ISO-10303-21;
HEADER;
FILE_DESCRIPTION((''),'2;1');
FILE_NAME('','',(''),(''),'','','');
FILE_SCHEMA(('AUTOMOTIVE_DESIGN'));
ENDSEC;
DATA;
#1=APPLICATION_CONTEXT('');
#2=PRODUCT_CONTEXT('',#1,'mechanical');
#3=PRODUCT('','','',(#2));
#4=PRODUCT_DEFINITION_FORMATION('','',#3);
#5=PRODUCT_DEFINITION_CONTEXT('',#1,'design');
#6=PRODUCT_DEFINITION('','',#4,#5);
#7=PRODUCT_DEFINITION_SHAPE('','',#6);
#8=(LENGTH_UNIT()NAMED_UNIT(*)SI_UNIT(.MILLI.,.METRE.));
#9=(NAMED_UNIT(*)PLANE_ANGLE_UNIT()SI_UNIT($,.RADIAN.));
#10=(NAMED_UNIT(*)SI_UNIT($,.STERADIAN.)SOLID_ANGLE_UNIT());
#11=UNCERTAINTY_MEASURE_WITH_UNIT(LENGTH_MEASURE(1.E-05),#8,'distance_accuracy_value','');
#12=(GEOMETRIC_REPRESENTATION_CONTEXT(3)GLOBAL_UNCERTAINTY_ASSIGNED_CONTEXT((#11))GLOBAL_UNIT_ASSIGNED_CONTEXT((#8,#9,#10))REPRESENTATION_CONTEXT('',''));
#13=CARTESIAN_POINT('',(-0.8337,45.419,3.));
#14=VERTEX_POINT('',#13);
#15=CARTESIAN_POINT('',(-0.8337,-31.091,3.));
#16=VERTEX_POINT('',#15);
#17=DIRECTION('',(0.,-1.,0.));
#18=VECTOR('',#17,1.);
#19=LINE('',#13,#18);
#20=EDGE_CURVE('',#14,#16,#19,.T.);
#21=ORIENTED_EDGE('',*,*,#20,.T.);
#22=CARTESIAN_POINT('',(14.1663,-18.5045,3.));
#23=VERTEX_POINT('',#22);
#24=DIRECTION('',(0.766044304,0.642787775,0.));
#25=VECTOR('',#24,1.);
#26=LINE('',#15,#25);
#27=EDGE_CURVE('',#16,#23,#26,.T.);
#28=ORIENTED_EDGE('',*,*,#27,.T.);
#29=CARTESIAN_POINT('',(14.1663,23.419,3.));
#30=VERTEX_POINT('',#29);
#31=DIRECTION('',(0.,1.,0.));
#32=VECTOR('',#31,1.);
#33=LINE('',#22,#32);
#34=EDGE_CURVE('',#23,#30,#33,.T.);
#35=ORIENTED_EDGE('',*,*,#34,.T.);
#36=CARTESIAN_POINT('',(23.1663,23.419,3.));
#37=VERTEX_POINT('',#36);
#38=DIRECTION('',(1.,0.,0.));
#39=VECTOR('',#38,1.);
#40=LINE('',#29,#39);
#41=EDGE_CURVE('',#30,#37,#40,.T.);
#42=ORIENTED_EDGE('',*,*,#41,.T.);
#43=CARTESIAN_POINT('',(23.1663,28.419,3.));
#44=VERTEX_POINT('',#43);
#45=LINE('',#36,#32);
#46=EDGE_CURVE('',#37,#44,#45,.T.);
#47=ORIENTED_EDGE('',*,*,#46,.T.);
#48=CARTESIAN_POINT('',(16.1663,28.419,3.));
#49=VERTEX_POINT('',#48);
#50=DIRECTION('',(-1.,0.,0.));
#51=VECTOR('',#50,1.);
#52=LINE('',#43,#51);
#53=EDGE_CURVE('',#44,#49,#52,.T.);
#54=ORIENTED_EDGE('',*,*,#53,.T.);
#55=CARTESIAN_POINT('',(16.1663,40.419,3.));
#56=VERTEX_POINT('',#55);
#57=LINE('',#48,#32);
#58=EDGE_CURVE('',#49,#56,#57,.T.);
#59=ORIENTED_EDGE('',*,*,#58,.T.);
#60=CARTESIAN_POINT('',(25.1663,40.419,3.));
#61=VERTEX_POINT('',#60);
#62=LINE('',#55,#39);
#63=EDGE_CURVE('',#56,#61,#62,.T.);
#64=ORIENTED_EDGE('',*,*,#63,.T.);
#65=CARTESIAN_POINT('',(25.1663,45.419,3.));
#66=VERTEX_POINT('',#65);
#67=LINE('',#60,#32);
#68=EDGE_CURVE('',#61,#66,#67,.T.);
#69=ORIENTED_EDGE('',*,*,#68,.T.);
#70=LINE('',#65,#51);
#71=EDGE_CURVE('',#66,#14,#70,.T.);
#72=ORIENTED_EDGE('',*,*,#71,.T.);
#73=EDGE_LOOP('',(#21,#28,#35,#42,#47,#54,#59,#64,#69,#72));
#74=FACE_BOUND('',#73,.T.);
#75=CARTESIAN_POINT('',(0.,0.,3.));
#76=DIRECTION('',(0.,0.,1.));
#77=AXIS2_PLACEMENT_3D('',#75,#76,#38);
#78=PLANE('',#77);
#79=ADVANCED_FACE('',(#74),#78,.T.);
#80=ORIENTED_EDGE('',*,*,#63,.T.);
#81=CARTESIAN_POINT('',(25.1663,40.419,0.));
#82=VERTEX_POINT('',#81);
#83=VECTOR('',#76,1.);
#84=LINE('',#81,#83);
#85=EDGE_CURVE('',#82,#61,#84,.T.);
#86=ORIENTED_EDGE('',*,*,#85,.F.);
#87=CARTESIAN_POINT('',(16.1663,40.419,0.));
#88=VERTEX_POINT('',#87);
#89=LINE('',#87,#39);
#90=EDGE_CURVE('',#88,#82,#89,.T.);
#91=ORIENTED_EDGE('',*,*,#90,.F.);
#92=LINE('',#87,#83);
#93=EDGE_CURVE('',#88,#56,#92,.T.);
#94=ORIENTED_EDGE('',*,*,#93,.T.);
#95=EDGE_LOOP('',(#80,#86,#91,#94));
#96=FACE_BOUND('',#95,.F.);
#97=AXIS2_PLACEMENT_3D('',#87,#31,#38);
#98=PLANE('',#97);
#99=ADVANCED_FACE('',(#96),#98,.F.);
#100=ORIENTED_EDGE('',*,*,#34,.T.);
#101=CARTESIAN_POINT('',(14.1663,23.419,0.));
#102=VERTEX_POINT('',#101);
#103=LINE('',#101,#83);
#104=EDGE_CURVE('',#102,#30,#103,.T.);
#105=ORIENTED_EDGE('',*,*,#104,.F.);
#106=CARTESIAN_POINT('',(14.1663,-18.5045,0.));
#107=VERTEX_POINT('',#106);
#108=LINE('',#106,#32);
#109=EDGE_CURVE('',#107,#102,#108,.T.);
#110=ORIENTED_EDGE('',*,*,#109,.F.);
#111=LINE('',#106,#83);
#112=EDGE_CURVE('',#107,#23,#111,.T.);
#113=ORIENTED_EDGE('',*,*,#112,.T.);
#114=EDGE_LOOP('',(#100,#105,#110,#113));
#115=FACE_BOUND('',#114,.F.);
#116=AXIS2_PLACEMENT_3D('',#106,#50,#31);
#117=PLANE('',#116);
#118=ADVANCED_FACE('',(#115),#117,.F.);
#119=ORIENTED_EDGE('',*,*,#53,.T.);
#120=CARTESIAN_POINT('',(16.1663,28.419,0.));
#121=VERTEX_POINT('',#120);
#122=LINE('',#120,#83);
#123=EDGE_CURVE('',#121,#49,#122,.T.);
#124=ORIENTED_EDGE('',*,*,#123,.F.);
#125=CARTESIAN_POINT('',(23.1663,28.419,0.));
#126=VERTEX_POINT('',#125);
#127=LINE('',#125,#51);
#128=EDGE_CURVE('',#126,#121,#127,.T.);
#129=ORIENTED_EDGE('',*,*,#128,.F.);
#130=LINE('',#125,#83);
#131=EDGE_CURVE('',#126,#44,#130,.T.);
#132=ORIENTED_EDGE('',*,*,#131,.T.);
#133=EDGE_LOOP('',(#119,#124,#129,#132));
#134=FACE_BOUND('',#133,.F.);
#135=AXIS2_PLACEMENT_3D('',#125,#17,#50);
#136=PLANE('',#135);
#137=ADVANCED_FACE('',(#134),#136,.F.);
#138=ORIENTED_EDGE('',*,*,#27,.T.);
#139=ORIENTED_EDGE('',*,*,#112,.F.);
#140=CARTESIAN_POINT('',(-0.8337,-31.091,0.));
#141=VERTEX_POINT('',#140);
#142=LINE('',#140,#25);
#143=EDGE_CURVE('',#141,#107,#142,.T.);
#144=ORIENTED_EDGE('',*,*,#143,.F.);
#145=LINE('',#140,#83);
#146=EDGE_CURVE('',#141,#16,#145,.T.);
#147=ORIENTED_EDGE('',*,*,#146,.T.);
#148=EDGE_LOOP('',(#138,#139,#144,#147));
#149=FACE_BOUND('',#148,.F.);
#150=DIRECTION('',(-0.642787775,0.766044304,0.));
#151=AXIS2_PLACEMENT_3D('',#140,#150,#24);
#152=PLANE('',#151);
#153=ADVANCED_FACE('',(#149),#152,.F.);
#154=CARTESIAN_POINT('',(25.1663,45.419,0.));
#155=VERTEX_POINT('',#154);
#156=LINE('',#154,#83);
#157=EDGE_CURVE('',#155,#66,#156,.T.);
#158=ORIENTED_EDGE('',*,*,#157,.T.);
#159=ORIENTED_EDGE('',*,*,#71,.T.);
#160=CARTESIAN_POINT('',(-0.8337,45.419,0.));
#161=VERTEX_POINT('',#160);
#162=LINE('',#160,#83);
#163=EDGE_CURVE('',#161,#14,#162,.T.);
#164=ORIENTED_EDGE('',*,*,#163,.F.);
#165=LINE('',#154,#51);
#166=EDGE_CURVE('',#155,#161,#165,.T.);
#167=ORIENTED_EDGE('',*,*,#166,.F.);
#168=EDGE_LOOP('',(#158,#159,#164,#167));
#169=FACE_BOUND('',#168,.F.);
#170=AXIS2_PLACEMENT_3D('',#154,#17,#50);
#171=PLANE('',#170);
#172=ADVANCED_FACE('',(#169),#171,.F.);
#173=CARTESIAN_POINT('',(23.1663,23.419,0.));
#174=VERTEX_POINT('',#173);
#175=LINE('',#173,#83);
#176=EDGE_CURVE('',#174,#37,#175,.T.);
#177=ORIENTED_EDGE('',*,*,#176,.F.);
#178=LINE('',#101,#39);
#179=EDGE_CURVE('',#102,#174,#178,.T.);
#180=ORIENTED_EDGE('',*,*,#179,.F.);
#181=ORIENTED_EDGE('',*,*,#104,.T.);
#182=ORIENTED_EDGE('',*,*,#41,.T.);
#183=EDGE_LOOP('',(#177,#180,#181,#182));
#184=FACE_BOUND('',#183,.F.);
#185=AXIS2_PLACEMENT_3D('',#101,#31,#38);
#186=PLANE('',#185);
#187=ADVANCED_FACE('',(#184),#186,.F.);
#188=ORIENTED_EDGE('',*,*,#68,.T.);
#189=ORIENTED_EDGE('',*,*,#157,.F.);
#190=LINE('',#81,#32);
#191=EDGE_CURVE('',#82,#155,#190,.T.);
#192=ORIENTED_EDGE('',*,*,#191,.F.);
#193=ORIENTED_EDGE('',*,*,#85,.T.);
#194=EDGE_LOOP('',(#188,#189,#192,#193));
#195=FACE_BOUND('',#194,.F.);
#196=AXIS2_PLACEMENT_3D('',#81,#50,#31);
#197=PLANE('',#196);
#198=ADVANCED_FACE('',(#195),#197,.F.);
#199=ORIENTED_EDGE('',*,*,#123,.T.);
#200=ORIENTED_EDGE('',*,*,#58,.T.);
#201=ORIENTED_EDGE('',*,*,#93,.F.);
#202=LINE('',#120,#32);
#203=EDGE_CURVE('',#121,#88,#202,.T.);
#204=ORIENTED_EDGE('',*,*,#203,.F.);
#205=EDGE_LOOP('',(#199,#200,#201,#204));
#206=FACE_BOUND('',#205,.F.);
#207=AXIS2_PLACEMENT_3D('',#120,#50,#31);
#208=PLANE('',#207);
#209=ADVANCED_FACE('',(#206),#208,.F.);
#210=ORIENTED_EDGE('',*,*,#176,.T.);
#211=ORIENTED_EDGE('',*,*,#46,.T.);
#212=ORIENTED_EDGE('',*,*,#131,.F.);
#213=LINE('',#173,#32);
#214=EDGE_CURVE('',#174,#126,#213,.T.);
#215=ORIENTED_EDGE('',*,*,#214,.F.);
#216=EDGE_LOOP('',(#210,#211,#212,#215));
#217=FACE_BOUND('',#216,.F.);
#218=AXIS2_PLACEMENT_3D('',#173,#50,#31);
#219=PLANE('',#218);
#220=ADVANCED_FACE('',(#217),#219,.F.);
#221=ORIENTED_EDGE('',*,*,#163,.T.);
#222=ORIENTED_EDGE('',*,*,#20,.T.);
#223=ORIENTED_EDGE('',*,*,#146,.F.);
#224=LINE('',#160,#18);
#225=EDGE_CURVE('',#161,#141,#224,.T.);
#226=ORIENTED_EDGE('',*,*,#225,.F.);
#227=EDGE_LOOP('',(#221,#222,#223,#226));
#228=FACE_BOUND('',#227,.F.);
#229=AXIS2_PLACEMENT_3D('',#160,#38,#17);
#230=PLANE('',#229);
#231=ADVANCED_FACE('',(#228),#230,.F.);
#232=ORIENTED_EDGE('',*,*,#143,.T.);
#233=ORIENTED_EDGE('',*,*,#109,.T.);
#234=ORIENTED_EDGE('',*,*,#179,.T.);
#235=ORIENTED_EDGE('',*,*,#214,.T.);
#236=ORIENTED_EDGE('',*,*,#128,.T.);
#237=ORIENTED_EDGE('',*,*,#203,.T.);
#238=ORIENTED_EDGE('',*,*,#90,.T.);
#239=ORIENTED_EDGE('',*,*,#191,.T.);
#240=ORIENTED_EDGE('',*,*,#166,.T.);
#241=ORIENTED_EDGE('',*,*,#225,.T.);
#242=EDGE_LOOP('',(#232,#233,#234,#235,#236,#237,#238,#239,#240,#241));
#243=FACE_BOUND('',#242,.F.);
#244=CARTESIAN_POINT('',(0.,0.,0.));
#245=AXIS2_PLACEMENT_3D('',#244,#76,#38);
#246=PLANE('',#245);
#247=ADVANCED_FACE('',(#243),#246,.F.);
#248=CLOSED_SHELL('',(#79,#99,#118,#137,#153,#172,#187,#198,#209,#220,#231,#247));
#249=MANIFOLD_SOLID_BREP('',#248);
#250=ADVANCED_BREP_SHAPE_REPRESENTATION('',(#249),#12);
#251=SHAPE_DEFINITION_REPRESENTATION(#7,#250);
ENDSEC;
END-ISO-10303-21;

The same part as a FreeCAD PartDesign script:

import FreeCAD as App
import Part
import Sketcher
from FreeCAD import Vector
Q = App.Units.Quantity

doc = App.newDocument("Part")
body = doc.addObject("PartDesign::Body", "Body")

# Sketch on XY plane
sketch1 = doc.addObject("Sketcher::SketchObject", "Sketch")
body.addObject(sketch1)
sketch1.AttachmentSupport = (doc.XY_Plane, [""])
sketch1.MapMode = "FlatFace"
sketch1.addGeometry(Part.LineSegment(Vector(25, 45, 0), Vector(-1, 45, 0)), False)
sketch1.addGeometry(Part.LineSegment(Vector(-1, 45, 0), Vector(-1, -31, 0)), False)
sketch1.addGeometry(Part.LineSegment(Vector(-1, -31, 0), Vector(14, -19, 0)), False)
sketch1.addGeometry(Part.LineSegment(Vector(14, -19, 0), Vector(14, 23, 0)), False)
sketch1.addGeometry(Part.LineSegment(Vector(14, 23, 0), Vector(23, 23, 0)), False)
sketch1.addGeometry(Part.LineSegment(Vector(23, 23, 0), Vector(23, 28, 0)), False)
sketch1.addGeometry(Part.LineSegment(Vector(23, 28, 0), Vector(16, 28, 0)), False)
sketch1.addGeometry(Part.LineSegment(Vector(16, 28, 0), Vector(16, 40, 0)), False)
sketch1.addGeometry(Part.LineSegment(Vector(16, 40, 0), Vector(25, 40, 0)), False)
sketch1.addGeometry(Part.LineSegment(Vector(25, 40, 0), Vector(25, 45, 0)), False)
sketch1.addConstraint(Sketcher.Constraint("Coincident", 0, 2, 1, 1))
sketch1.addConstraint(Sketcher.Constraint("Coincident", 1, 2, 2, 1))
sketch1.addConstraint(Sketcher.Constraint("Coincident", 2, 2, 3, 1))
sketch1.addConstraint(Sketcher.Constraint("Coincident", 3, 2, 4, 1))
sketch1.addConstraint(Sketcher.Constraint("Coincident", 4, 2, 5, 1))
sketch1.addConstraint(Sketcher.Constraint("Coincident", 5, 2, 6, 1))
sketch1.addConstraint(Sketcher.Constraint("Coincident", 6, 2, 7, 1))
sketch1.addConstraint(Sketcher.Constraint("Coincident", 7, 2, 8, 1))
sketch1.addConstraint(Sketcher.Constraint("Coincident", 8, 2, 9, 1))
sketch1.addConstraint(Sketcher.Constraint("Coincident", 9, 2, 0, 1))
sketch1.addConstraint(Sketcher.Constraint("Horizontal", 0))
sketch1.addConstraint(Sketcher.Constraint("Vertical", 1))
sketch1.addConstraint(Sketcher.Constraint("Vertical", 3))
sketch1.addConstraint(Sketcher.Constraint("Horizontal", 4))
sketch1.addConstraint(Sketcher.Constraint("Vertical", 5))
sketch1.addConstraint(Sketcher.Constraint("Horizontal", 6))
sketch1.addConstraint(Sketcher.Constraint("Vertical", 7))
sketch1.addConstraint(Sketcher.Constraint("Horizontal", 8))
sketch1.addConstraint(Sketcher.Constraint("Vertical", 9))
sketch1.addConstraint(Sketcher.Constraint("Equal", 4, 8))
sketch1.addConstraint(Sketcher.Constraint("Equal", 5, 9))
sketch1.addConstraint(Sketcher.Constraint("DistanceX", 4, 1, 4, 2, 9.0))
sketch1.addConstraint(Sketcher.Constraint("DistanceX", 6, 2, 6, 1, 7.0))
sketch1.addConstraint(Sketcher.Constraint("DistanceY", 5, 1, 5, 2, 5.0))
sketch1.addConstraint(Sketcher.Constraint("DistanceY", 7, 1, 7, 2, 12.0))
sketch1.addConstraint(Sketcher.Constraint("DistanceX", 1, 2, 2, 2, 15.0))
sketch1.addConstraint(Sketcher.Constraint("Angle", 2, Q("40 deg")))
sketch1.addConstraint(Sketcher.Constraint("DistanceY", 1, 2, 1, 1, 76.51))
sketch1.addConstraint(Sketcher.Constraint("DistanceY", -1, 1, 0, 2, 45.419))
sketch1.addConstraint(Sketcher.Constraint("DistanceX", 0, 2, -1, 1, 0.8337))
pad1 = doc.addObject("PartDesign::Pad", "Pad")
body.addObject(pad1)
pad1.Profile = sketch1
pad1.Length = 3

doc.recompute()
